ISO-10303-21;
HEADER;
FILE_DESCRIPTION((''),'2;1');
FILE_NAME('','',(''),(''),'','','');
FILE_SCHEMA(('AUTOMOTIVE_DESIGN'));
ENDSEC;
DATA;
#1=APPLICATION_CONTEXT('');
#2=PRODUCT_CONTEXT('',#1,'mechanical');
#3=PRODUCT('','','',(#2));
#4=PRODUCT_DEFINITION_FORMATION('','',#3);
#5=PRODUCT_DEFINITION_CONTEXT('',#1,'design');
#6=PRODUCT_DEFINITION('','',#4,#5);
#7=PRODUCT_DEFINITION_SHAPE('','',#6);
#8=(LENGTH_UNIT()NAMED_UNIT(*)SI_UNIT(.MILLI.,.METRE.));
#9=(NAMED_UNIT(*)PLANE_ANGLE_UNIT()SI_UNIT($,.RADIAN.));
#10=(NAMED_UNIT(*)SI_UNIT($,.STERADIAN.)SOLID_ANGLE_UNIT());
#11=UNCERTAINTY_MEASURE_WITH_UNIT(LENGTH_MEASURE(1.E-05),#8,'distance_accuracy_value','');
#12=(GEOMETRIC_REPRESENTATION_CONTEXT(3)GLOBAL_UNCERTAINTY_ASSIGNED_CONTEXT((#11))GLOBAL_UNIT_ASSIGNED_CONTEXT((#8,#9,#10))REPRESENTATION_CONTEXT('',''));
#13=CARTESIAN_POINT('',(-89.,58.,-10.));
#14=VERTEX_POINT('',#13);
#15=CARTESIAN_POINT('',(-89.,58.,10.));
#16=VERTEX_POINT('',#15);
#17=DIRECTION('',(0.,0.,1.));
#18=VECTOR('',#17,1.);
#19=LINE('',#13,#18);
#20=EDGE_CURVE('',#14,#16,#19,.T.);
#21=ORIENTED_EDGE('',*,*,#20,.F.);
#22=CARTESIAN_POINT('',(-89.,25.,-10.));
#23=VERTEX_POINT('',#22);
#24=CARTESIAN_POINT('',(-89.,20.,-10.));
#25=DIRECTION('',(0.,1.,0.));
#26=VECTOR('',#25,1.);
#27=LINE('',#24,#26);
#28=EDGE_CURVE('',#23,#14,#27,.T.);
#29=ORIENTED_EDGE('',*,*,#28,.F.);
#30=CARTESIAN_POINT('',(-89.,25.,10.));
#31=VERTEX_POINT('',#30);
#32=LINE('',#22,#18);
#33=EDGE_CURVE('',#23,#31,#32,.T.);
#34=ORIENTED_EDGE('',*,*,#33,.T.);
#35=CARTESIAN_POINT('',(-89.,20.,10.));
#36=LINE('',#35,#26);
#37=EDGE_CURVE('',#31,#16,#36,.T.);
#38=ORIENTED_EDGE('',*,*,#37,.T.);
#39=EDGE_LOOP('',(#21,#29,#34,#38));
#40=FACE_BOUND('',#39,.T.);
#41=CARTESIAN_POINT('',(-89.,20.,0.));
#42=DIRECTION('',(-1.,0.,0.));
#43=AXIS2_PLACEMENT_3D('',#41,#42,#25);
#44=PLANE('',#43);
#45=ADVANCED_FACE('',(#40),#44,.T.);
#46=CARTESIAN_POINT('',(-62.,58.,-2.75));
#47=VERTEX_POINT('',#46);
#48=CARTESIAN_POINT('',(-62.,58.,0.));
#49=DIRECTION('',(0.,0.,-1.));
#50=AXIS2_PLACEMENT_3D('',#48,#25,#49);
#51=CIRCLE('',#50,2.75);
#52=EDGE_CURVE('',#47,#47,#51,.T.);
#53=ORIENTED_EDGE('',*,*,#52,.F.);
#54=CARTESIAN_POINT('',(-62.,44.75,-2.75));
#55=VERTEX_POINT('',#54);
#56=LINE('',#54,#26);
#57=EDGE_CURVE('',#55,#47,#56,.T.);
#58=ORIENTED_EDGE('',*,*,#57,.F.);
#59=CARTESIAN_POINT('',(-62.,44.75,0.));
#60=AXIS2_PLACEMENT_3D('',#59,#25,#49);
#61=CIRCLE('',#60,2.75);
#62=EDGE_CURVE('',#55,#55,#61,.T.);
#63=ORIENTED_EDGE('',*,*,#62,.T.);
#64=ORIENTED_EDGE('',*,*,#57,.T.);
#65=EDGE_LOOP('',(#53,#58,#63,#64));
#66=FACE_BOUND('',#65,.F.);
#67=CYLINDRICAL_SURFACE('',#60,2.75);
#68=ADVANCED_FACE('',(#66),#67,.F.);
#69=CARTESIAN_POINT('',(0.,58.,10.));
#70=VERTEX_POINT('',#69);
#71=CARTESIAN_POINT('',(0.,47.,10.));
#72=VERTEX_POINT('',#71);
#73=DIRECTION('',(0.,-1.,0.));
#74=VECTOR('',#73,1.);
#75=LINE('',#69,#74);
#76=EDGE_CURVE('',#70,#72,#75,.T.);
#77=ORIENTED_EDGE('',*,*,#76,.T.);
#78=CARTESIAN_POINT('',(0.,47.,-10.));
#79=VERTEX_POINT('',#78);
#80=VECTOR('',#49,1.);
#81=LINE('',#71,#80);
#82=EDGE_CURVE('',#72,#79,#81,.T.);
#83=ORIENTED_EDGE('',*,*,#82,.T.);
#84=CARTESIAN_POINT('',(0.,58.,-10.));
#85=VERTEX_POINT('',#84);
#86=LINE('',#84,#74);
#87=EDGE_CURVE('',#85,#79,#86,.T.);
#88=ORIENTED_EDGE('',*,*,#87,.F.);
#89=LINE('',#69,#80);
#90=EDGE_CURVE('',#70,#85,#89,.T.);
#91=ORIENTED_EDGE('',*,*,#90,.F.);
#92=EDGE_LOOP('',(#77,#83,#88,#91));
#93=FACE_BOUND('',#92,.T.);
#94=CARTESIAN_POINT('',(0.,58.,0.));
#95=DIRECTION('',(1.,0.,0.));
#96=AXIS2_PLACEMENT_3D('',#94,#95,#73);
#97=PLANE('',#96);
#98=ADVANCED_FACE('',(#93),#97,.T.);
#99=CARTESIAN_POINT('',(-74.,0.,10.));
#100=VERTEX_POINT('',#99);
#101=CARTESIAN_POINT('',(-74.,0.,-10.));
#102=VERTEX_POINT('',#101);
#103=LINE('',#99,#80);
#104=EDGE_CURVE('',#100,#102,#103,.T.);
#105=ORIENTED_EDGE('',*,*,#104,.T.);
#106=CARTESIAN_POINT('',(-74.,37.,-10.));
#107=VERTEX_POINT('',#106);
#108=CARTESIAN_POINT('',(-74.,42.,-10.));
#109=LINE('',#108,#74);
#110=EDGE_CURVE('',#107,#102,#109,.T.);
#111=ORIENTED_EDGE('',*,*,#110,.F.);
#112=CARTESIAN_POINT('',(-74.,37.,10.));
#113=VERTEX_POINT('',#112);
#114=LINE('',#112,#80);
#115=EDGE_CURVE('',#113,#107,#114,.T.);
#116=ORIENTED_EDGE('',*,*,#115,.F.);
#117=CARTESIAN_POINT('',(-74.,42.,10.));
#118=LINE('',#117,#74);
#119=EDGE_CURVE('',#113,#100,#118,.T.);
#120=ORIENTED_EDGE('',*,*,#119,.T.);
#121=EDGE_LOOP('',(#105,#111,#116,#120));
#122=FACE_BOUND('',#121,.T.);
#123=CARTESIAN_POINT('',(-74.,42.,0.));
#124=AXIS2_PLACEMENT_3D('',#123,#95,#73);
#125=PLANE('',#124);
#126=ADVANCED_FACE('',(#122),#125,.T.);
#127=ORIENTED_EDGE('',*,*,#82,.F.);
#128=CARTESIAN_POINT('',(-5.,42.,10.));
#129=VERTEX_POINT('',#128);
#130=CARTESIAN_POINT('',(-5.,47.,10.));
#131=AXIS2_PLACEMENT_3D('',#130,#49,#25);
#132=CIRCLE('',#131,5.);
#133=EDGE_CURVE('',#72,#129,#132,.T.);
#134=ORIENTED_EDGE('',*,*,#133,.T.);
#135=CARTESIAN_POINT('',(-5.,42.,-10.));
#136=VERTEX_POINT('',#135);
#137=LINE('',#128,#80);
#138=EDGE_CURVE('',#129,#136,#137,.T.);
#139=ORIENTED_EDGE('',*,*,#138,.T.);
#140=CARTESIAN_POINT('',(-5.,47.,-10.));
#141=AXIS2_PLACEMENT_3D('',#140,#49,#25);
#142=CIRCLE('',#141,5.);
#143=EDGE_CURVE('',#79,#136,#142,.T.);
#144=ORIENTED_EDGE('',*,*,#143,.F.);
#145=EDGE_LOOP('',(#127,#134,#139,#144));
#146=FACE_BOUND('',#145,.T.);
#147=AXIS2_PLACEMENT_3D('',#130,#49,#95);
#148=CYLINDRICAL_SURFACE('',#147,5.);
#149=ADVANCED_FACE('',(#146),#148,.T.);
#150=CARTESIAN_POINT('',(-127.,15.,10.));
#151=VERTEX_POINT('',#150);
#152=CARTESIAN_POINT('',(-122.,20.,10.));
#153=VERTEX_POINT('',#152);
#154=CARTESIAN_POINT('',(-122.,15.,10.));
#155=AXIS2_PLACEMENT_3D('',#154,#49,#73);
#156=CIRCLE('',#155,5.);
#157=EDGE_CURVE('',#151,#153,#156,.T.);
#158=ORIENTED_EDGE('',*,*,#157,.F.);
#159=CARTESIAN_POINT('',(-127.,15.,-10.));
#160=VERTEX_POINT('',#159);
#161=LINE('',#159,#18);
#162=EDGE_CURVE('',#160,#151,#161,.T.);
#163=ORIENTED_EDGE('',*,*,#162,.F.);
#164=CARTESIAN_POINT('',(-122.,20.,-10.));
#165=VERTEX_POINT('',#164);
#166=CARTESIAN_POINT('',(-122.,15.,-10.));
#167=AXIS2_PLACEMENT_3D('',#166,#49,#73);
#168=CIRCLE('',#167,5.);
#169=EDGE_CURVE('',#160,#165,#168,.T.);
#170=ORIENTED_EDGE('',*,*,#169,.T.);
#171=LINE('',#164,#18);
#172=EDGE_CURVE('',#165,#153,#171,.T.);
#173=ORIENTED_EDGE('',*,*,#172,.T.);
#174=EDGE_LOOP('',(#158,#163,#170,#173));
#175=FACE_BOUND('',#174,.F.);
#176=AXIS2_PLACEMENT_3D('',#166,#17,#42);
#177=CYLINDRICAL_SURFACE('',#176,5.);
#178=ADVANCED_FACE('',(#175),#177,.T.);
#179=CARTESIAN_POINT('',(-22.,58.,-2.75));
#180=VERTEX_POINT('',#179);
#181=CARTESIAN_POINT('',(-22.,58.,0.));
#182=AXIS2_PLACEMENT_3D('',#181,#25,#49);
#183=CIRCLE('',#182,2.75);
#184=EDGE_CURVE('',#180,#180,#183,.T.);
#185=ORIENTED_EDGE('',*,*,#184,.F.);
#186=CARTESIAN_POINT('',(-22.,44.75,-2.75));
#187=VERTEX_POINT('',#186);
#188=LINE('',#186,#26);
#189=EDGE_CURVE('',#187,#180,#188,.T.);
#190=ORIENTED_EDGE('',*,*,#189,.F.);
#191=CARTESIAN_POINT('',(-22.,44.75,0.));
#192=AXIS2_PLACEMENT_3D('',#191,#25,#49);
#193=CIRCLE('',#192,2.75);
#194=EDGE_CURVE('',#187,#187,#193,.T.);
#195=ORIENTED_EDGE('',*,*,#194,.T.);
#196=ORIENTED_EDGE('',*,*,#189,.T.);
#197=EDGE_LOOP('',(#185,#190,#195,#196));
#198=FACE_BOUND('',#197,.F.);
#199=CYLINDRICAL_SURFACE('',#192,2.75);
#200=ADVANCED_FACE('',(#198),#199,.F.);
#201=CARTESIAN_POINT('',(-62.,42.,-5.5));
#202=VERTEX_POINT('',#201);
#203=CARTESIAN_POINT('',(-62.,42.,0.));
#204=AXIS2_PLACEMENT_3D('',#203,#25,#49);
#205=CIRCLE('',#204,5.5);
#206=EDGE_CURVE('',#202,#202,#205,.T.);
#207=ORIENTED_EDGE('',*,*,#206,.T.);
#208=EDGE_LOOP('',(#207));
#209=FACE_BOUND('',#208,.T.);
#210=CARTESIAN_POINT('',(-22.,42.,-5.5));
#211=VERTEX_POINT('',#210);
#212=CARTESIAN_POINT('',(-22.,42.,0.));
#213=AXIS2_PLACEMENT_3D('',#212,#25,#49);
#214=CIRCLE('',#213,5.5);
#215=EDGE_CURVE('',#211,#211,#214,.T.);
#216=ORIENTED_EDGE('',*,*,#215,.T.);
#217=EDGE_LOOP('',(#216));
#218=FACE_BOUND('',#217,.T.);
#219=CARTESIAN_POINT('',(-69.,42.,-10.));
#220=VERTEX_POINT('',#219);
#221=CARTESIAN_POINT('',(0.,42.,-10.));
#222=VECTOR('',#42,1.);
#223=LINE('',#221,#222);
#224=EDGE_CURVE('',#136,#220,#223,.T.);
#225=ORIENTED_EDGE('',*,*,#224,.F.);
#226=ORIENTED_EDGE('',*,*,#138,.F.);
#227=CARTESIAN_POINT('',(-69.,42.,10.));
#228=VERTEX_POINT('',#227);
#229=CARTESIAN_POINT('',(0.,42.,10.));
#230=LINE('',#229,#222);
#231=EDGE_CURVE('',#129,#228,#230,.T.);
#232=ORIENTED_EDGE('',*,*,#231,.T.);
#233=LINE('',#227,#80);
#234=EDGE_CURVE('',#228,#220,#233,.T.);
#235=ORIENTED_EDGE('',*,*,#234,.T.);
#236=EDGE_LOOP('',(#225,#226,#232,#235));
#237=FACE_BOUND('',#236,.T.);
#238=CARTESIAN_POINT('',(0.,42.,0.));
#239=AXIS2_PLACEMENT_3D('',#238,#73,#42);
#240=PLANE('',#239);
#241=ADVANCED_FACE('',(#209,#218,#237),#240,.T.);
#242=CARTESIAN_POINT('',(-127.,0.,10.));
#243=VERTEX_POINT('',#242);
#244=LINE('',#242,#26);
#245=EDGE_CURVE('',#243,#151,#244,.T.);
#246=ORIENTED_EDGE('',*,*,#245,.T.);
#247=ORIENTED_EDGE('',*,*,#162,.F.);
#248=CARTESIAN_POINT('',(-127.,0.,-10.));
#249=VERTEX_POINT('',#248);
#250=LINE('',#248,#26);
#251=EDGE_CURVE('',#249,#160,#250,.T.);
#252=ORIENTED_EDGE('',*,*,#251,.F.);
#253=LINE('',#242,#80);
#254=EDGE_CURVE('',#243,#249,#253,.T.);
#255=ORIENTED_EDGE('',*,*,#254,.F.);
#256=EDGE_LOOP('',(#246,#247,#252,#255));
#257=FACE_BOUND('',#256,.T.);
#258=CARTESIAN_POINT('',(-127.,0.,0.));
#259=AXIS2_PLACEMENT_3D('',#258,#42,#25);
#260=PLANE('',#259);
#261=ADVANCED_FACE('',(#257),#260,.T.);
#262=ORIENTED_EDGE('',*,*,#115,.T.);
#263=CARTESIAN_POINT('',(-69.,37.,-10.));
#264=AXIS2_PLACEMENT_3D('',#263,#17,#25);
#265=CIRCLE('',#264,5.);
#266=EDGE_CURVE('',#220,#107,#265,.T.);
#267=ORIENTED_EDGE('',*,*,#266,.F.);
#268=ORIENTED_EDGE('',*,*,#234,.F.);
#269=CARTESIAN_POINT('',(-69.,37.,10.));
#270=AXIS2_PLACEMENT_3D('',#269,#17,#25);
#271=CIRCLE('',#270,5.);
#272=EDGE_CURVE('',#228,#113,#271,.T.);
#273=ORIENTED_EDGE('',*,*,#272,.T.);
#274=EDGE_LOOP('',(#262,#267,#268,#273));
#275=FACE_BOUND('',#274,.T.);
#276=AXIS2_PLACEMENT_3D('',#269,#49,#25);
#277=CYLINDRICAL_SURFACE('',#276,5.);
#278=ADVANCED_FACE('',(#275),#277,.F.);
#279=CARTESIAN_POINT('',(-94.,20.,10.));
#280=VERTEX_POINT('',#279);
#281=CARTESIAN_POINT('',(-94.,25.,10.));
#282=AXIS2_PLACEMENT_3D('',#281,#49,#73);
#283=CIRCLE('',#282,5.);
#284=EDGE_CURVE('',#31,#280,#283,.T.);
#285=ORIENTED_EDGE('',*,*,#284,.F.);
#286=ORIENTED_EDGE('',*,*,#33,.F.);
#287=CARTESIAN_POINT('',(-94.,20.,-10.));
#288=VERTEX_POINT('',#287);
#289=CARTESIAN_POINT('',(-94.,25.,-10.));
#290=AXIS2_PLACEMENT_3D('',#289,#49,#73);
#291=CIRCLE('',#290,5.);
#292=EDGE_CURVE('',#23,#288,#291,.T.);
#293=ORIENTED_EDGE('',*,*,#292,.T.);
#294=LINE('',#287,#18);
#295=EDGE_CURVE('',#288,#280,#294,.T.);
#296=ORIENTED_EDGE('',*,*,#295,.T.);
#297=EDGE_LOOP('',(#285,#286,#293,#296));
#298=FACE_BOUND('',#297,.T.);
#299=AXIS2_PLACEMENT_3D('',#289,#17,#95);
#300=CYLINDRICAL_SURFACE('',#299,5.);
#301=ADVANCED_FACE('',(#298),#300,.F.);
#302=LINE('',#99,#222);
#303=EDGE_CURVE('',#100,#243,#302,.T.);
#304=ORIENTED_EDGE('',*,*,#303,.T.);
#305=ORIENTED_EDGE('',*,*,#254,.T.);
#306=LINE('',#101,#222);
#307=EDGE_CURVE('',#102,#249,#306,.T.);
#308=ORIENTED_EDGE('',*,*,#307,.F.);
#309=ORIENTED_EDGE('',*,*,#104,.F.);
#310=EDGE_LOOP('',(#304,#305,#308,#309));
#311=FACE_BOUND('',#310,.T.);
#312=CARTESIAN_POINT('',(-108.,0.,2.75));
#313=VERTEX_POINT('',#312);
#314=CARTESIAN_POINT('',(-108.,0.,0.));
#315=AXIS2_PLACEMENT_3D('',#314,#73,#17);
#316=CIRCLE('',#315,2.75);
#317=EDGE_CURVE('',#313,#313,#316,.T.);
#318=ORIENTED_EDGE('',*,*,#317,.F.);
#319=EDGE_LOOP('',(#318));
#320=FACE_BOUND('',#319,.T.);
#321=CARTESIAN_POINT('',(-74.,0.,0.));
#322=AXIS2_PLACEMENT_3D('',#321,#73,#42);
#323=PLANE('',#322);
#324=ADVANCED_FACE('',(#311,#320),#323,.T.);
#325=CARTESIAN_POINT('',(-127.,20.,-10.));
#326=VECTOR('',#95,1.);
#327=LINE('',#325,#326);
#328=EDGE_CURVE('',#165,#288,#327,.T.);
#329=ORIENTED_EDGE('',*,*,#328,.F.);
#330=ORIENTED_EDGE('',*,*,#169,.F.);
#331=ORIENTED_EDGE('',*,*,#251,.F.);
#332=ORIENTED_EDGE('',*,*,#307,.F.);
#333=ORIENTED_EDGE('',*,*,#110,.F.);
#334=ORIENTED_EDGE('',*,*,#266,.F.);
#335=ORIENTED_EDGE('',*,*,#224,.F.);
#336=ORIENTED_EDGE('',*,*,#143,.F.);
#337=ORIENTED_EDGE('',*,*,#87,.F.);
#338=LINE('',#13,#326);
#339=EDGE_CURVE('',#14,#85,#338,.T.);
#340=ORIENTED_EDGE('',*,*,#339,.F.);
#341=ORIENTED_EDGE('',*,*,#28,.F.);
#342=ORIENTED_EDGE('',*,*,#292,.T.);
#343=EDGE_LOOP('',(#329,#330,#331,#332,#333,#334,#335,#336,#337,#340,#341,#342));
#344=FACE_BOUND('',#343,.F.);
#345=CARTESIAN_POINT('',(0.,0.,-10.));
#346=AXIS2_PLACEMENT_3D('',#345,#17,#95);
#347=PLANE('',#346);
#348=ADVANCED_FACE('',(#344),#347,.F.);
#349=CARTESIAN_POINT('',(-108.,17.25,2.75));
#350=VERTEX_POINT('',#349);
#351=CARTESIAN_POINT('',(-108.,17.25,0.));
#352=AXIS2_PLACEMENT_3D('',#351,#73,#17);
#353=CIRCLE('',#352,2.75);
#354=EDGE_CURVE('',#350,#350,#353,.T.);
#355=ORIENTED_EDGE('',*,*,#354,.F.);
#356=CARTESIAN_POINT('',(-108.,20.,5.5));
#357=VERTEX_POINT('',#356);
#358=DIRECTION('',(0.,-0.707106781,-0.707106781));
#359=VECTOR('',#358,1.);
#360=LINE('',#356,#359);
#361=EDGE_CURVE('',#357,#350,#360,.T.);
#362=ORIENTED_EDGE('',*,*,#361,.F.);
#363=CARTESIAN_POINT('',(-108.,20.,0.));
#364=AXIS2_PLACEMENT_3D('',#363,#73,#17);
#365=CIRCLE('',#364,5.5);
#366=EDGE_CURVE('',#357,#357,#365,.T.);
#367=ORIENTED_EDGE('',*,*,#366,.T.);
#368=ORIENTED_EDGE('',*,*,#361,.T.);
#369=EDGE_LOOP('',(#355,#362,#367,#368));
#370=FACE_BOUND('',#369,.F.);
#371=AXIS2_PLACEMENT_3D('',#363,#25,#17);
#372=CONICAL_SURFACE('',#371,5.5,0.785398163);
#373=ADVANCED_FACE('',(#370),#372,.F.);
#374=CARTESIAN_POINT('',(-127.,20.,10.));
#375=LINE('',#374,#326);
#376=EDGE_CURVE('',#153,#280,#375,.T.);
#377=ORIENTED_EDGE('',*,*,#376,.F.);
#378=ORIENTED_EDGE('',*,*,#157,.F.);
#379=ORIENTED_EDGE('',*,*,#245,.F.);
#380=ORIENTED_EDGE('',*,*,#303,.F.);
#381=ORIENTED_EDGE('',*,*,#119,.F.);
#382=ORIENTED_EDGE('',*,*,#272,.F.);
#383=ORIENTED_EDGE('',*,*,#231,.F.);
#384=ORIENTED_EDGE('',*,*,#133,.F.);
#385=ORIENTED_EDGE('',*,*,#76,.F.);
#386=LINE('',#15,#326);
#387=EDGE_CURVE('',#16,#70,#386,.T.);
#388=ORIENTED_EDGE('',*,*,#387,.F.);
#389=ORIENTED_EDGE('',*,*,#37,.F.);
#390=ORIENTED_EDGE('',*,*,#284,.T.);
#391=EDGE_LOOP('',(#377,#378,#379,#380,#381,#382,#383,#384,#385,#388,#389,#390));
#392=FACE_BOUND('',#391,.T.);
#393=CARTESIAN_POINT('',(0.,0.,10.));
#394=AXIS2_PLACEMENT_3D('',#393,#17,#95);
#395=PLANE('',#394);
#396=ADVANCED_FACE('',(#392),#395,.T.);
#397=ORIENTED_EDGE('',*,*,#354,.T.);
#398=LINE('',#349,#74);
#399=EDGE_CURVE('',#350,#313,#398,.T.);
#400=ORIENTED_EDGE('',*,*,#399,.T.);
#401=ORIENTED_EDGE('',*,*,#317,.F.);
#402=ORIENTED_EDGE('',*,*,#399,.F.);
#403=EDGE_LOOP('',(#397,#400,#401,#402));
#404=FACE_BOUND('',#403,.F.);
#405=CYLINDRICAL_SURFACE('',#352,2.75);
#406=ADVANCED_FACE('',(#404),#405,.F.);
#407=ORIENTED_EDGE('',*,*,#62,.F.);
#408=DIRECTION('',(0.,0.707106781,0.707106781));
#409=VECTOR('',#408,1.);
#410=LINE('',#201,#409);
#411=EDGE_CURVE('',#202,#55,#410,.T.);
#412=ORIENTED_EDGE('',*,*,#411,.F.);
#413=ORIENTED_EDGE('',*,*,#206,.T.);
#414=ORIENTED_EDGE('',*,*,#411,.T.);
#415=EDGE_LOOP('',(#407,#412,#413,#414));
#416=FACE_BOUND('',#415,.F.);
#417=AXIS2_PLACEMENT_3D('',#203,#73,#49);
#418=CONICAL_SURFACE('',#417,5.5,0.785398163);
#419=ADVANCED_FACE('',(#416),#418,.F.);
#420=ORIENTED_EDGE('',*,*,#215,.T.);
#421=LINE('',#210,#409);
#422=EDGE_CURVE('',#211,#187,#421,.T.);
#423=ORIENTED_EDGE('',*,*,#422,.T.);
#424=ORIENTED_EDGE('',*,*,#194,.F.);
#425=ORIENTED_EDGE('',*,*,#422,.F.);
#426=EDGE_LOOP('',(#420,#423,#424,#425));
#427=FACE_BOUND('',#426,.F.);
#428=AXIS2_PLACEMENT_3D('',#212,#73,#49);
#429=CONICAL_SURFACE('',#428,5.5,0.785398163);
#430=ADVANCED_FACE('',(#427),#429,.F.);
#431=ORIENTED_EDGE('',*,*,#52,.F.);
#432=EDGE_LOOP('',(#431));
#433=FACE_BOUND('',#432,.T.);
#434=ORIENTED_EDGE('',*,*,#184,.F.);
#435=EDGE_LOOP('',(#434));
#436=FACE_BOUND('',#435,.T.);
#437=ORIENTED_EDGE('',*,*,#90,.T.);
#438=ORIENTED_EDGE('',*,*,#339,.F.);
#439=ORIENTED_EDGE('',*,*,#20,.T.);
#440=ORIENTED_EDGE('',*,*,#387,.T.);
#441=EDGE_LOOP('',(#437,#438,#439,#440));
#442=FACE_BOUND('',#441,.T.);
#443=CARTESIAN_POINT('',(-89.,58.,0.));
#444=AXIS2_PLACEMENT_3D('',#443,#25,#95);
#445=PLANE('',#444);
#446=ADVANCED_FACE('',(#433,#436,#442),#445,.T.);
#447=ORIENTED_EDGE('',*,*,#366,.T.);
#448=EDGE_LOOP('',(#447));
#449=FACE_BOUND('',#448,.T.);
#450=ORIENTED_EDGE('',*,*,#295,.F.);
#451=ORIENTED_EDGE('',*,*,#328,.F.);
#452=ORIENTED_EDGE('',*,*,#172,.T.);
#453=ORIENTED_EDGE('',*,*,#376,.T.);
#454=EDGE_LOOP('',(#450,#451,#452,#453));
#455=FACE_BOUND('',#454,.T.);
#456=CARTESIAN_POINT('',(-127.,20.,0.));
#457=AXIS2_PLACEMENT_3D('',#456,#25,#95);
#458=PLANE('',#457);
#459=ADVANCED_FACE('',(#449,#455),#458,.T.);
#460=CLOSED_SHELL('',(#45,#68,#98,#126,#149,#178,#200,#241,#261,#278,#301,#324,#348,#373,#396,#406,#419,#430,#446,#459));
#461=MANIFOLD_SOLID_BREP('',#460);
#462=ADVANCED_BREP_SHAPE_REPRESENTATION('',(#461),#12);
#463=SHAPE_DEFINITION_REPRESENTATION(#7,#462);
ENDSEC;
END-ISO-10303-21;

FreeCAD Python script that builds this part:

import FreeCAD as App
import Part
import Sketcher

V = App.Vector


def edges_at(feature, points):
    """Names of the edges that pass closest to the given points."""
    edges = feature.Shape.Edges
    near = lambda p: min(range(len(edges)), key=lambda i: edges[i].distToShape(Part.Vertex(*p))[0])
    return sorted({f"Edge{near(p) + 1}" for p in points})

doc = App.newDocument("Part")
body = doc.addObject("PartDesign::Body", "Body")

# Sketch on XY plane
sketch1 = body.newObject("Sketcher::SketchObject", "Sketch")
sketch1.AttachmentSupport = (doc.getObject("XY_Plane"), [""])
sketch1.MapMode = "FlatFace"
sketch1.addGeometry(Part.LineSegment(V(0, 58, 0), V(-89, 58, 0)), False)
sketch1.addGeometry(Part.LineSegment(V(-89, 58, 0), V(-89, 20, 0)), False)
sketch1.addGeometry(Part.LineSegment(V(-89, 20, 0), V(-127, 20, 0)), False)
sketch1.addGeometry(Part.LineSegment(V(-127, 20, 0), V(-127, 0, 0)), False)
sketch1.addGeometry(Part.LineSegment(V(-127, 0, 0), V(-74, 0, 0)), False)
sketch1.addGeometry(Part.LineSegment(V(-74, 0, 0), V(-74, 42, 0)), False)
sketch1.addGeometry(Part.LineSegment(V(-74, 42, 0), V(0, 42, 0)), False)
sketch1.addGeometry(Part.LineSegment(V(0, 42, 0), V(0, 58, 0)), False)
sketch1.addConstraint(Sketcher.Constraint("Coincident", 0, 2, 1, 1))
sketch1.addConstraint(Sketcher.Constraint("Coincident", 1, 2, 2, 1))
sketch1.addConstraint(Sketcher.Constraint("Coincident", 2, 2, 3, 1))
sketch1.addConstraint(Sketcher.Constraint("Coincident", 3, 2, 4, 1))
sketch1.addConstraint(Sketcher.Constraint("Coincident", 4, 2, 5, 1))
sketch1.addConstraint(Sketcher.Constraint("Coincident", 5, 2, 6, 1))
sketch1.addConstraint(Sketcher.Constraint("Coincident", 6, 2, 7, 1))
sketch1.addConstraint(Sketcher.Constraint("Coincident", 7, 2, 0, 1))
sketch1.addConstraint(Sketcher.Constraint("Horizontal", 0))
sketch1.addConstraint(Sketcher.Constraint("Vertical", 1))
sketch1.addConstraint(Sketcher.Constraint("Horizontal", 2))
sketch1.addConstraint(Sketcher.Constraint("Vertical", 3))
sketch1.addConstraint(Sketcher.Constraint("Horizontal", 4))
sketch1.addConstraint(Sketcher.Constraint("Vertical", 5))
sketch1.addConstraint(Sketcher.Constraint("Horizontal", 6))
sketch1.addConstraint(Sketcher.Constraint("Vertical", 7))
sketch1.addConstraint(Sketcher.Constraint("PointOnObject", 3, 2, -1))
sketch1.addConstraint(Sketcher.Constraint("PointOnObject", 6, 2, -2))
sketch1.addConstraint(Sketcher.Constraint("Equal", 2, 1))
sketch1.addConstraint(Sketcher.Constraint("DistanceX", 0, 2, 0, 1, 89.0))
sketch1.addConstraint(Sketcher.Constraint("DistanceX", 2, 2, 2, 1, 38.0))
sketch1.addConstraint(Sketcher.Constraint("DistanceX", 4, 1, 4, 2, 53.0))
sketch1.addConstraint(Sketcher.Constraint("DistanceY", 3, 2, 3, 1, 20.0))
sketch1.addConstraint(Sketcher.Constraint("DistanceY", 7, 1, 7, 2, 16.0))
pad1 = body.newObject("PartDesign::Pad", "Pad")
pad1.Profile = sketch1
pad1.Length = 20
pad1.Midplane = True

# Sketch on XZ plane
sketch2 = body.newObject("Sketcher::SketchObject", "Sketch001")
sketch2.AttachmentSupport = (doc.getObject("XZ_Plane"), [""])
sketch2.MapMode = "FlatFace"
sketch2.AttachmentOffset = App.Placement(V(0, 0, -42), App.Rotation())
sketch2.addGeometry(Part.Circle(V(-62, 0, 0), V(0, 0, 1), 2.8), False)
sketch2.addGeometry(Part.Circle(V(-22, 0, 0), V(0, 0, 1), 2.8), False)
sketch2.addConstraint(Sketcher.Constraint("Equal", 0, 1))
sketch2.addConstraint(Sketcher.Constraint("PointOnObject", 0, 3, -1))
sketch2.addConstraint(Sketcher.Constraint("PointOnObject", 1, 3, -1))
sketch2.addConstraint(Sketcher.Constraint("Diameter", 0, 5.5))
sketch2.addConstraint(Sketcher.Constraint("DistanceX", 0, 3, -1, 1, 62.0))
sketch2.addConstraint(Sketcher.Constraint("DistanceX", 1, 3, -1, 1, 22.0))
doc.recompute()
hole = body.newObject("PartDesign::Hole", "Hole")
hole.Profile = sketch2
hole.ThreadType = "None"
hole.Diameter = 5.5
hole.DepthType = "ThroughAll"
hole.HoleCutType = "Countersink"
hole.HoleCutDiameter = 11
hole.HoleCutCountersinkAngle = 90
doc.recompute()

fillet = body.newObject("PartDesign::Fillet", "Fillet")
fillet.Base = (hole, edges_at(hole, [
    (-89, 20, 0),
    (-74, 42, 0),
    (-127, 20, 0),
    (0, 42, 0),
]))
fillet.Radius = 5

# Sketch on XZ plane
sketch3 = body.newObject("Sketcher::SketchObject", "Sketch002")
sketch3.AttachmentSupport = (doc.getObject("XZ_Plane"), [""])
sketch3.MapMode = "FlatFace"
sketch3.AttachmentOffset = App.Placement(V(0, 0, -20), App.Rotation())
sketch3.addGeometry(Part.Circle(V(-108, 0, 0), V(0, 0, 1), 2.8), False)
sketch3.addConstraint(Sketcher.Constraint("PointOnObject", 0, 3, -1))
sketch3.addConstraint(Sketcher.Constraint("Diameter", 0, 5.5))
sketch3.addConstraint(Sketcher.Constraint("DistanceX", 0, 3, -1, 1, 108.0))
doc.recompute()
hole2 = body.newObject("PartDesign::Hole", "Hole001")
hole2.Profile = sketch3
hole2.ThreadType = "None"
hole2.Diameter = 5.5
hole2.DepthType = "ThroughAll"
hole2.HoleCutType = "Countersink"
hole2.HoleCutDiameter = 11
hole2.HoleCutCountersinkAngle = 90
hole2.Reversed = True

doc.recompute()
